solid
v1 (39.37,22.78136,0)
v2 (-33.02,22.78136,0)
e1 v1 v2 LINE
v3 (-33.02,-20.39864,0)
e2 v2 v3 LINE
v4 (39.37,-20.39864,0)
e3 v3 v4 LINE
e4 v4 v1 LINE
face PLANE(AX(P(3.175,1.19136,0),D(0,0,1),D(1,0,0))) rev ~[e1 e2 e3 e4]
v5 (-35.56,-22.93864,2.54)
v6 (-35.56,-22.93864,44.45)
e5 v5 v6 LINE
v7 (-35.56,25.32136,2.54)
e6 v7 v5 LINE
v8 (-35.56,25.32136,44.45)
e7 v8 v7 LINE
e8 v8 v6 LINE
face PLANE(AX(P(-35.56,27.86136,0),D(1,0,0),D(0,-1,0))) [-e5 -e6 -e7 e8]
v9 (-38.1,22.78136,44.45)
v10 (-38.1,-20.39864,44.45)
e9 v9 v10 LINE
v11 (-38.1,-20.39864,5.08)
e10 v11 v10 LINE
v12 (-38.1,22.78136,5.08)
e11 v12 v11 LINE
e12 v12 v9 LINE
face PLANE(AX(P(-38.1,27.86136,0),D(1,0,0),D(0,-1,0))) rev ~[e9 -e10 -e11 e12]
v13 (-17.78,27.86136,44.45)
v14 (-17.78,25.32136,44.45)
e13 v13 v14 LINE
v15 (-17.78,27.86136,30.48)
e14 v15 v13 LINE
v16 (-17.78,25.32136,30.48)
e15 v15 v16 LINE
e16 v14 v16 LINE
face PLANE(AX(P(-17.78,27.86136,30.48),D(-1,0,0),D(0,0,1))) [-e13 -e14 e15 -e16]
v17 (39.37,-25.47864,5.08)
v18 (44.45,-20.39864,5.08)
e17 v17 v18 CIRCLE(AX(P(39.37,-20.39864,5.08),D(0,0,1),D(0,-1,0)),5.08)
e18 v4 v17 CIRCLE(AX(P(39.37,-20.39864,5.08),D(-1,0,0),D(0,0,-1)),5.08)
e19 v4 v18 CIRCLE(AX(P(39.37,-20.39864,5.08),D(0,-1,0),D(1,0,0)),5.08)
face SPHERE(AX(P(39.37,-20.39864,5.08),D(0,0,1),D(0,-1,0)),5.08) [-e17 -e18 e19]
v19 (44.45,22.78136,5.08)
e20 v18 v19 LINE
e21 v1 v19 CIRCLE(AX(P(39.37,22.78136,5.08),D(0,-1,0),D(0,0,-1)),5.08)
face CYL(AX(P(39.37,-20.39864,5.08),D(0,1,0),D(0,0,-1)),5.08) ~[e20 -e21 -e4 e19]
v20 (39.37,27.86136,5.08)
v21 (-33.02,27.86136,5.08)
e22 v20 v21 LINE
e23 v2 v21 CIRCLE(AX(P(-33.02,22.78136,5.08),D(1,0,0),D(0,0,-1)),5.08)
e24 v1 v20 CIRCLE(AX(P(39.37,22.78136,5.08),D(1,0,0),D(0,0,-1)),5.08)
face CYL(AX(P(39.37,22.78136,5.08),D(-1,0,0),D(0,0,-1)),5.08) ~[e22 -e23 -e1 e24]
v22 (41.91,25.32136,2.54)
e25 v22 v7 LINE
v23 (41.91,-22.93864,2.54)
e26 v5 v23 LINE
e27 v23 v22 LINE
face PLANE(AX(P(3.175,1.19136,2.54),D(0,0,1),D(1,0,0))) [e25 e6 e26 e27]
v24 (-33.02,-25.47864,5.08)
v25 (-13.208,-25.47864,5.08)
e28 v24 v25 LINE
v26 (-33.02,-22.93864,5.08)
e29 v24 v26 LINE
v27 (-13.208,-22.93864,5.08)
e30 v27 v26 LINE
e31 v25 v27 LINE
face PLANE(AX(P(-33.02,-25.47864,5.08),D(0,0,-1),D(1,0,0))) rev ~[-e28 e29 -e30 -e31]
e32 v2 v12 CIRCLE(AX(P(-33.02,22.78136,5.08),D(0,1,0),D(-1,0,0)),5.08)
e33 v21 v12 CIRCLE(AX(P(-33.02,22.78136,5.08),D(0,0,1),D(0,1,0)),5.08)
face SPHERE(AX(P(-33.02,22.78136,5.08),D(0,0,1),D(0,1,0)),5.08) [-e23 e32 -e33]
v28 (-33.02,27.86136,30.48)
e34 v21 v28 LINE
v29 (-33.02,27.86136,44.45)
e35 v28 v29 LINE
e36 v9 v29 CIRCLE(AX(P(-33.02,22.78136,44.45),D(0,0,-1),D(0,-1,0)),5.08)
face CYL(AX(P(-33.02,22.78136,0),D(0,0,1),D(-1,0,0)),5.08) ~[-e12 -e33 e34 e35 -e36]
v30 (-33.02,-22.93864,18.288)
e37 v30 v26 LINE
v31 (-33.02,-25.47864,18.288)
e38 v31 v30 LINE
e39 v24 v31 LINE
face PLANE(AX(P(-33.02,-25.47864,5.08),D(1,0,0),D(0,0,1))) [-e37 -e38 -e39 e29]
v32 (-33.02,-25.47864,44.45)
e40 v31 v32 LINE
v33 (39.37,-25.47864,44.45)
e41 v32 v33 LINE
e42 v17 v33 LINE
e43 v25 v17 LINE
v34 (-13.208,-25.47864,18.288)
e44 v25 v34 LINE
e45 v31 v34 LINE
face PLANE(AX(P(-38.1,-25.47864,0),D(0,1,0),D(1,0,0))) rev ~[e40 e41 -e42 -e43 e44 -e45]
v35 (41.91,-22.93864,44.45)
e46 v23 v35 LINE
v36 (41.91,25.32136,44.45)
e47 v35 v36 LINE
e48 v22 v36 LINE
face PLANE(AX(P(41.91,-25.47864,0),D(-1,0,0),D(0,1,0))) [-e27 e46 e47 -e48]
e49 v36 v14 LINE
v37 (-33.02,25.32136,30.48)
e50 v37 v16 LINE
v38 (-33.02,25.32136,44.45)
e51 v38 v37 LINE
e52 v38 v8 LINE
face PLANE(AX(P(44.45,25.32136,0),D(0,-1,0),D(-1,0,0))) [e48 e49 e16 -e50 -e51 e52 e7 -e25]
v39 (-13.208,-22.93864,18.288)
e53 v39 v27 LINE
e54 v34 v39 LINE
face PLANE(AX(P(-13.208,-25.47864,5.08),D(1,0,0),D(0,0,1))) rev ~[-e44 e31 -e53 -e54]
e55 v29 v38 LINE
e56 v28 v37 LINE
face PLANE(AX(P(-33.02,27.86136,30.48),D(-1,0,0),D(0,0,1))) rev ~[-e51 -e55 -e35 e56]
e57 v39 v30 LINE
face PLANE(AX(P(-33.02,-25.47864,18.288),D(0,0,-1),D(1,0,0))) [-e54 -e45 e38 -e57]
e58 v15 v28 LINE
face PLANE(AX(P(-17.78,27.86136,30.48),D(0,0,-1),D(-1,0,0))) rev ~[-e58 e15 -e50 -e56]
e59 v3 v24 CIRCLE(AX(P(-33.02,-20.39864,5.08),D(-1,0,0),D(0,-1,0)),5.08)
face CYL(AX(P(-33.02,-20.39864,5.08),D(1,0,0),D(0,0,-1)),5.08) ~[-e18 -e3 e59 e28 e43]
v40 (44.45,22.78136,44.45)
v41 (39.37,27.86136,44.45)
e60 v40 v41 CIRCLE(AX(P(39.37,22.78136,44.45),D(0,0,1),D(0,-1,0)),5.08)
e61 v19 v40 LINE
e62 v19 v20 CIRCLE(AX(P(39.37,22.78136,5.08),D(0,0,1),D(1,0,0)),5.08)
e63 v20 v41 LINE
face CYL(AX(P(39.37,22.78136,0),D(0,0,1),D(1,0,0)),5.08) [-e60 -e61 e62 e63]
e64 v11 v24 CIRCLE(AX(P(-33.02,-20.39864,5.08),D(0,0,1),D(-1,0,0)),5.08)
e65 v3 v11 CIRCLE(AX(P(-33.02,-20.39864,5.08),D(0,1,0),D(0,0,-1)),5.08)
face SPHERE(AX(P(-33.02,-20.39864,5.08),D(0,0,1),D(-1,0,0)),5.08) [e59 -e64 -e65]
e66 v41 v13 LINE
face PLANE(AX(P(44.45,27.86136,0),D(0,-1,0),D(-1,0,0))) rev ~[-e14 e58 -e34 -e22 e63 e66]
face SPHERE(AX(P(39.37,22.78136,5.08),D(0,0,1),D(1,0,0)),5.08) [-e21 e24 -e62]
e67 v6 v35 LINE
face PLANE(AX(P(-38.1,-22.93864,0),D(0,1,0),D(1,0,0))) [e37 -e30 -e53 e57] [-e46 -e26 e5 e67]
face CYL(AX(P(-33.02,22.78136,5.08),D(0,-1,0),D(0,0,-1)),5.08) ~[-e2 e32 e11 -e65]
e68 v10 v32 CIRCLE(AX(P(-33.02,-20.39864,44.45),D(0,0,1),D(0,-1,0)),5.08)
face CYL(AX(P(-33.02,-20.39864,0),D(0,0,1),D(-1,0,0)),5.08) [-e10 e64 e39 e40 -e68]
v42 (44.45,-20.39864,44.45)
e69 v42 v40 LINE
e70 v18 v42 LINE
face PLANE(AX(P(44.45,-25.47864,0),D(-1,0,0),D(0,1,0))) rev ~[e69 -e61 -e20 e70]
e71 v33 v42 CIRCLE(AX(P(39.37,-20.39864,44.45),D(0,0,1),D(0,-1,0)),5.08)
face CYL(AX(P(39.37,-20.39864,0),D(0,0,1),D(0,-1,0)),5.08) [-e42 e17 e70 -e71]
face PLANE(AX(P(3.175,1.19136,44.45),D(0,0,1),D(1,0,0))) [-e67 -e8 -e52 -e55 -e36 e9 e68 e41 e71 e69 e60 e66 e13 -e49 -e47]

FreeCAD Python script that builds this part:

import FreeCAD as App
import Part
import Sketcher
from FreeCAD import Vector
Q = App.Units.Quantity


def edges_at(feature, points):
    """Names of the edges that pass closest to the given points."""
    edges = feature.Shape.Edges
    near = lambda p: min(range(len(edges)), key=lambda i: edges[i].distToShape(Part.Vertex(*p))[0])
    return sorted({f"Edge{near(p) + 1}" for p in points})


def faces_at(feature, points):
    """Names of the faces that lie closest to the given points."""
    faces = feature.Shape.Faces
    near = lambda p: min(range(len(faces)), key=lambda i: faces[i].distToShape(Part.Vertex(*p))[0])
    return sorted({f"Face{near(p) + 1}" for p in points})


def add_polygon(sketch, points):
    """Adds a closed chain of lines whose ends are joined by coincident constraints."""
    first, n = sketch.GeometryCount, len(points)
    for a, b in zip(points, points[1:] + points[:1]):
        sketch.addGeometry(Part.LineSegment(App.Vector(*a, 0), App.Vector(*b, 0)), False)
    for i in range(n):
        sketch.addConstraint(Sketcher.Constraint("Coincident", first + i, 2, first + (i + 1) % n, 1))

doc = App.newDocument("Part")
body = doc.addObject("PartDesign::Body", "Body")

# Sketch on XY plane
sketch1 = body.newObject("Sketcher::SketchObject", "Sketch")
sketch1.AttachmentSupport = (doc.getObject("XY_Plane"), [""])
sketch1.MapMode = "FlatFace"
add_polygon(sketch1, [(-38, 28), (-38, -25), (44, -25), (44, 28)])  # lines 0-3
sketch1.addConstraint([
    Sketcher.Constraint("Vertical", 0),
    Sketcher.Constraint("Horizontal", 1),
    Sketcher.Constraint("Vertical", 2),
    Sketcher.Constraint("Horizontal", 3),
    Sketcher.Constraint("DistanceY", 0, 2, 0, 1, Q("2.1 in")),
    Sketcher.Constraint("DistanceX", 1, 1, 1, 2, Q("3.25 in")),
    Sketcher.Constraint("DistanceX", 0, 2, -1, 1, Q("1.5 in")),
    Sketcher.Constraint("DistanceY", 0, 2, -1, 1, 25.47864),
])
pad1 = body.newObject("PartDesign::Pad", "Pad")
pad1.Profile = sketch1
pad1.Length = Q("1.75 in")
doc.recompute()

thickness = body.newObject("PartDesign::Thickness", "Thickness")
thickness.Base = (pad1, faces_at(pad1, [(3.175, 1.191, 44.45)]))
thickness.Value = Q("0.1 in")
thickness.Reversed = True
thickness.Join = "Arc"
doc.recompute()

fillet = body.newObject("PartDesign::Fillet", "Fillet")
fillet.Base = (thickness, edges_at(thickness, [
    (-38.1, 27.861, 22.225),
    (-38.1, -25.479, 22.225),
    (44.45, -25.479, 22.225),
    (44.45, 27.861, 22.225),
]))
fillet.Radius = Q("0.2 in")
doc.recompute()

fillet2 = body.newObject("PartDesign::Fillet", "Fillet001")
fillet2.Base = (fillet, edges_at(fillet, [
    (3.175, 27.861, 0),
    (42.962, 26.373, 0),
    (-36.612, 26.373, 0),
    (44.45, 1.191, 0),
    (-38.1, 1.191, 0),
    (42.962, -23.991, 0),
    (-36.612, -23.991, 0),
    (3.175, -25.479, 0),
]))
fillet2.Radius = Q("0.2 in")

# Sketch on XZ plane
sketch2 = body.newObject("Sketcher::SketchObject", "Sketch001")
sketch2.AttachmentSupport = (doc.getObject("XZ_Plane"), [""])
sketch2.MapMode = "FlatFace"
sketch2.AttachmentOffset = App.Placement(Vector(0, 0, 25.47864), App.Rotation())
add_polygon(sketch2, [(-33, 18), (-33, 5), (-13, 5), (-13, 18)])  # lines 0-3
sketch2.addConstraint([
    Sketcher.Constraint("Vertical", 0),
    Sketcher.Constraint("Horizontal", 1),
    Sketcher.Constraint("Vertical", 2),
    Sketcher.Constraint("Horizontal", 3),
    Sketcher.Constraint("DistanceX", 1, 1, 1, 2, Q("0.78 in")),
    Sketcher.Constraint("DistanceY", 0, 2, 0, 1, Q("0.52 in")),
    Sketcher.Constraint("DistanceX", 0, 2, -1, 1, Q("1.3 in")),
    Sketcher.Constraint("DistanceY", -1, 1, 0, 2, Q("0.2 in")),
])
pocket1 = body.newObject("PartDesign::Pocket", "Pocket")
pocket1.Profile = sketch2
pocket1.Length = Q("0.22 in")

# Sketch on XZ plane
sketch3 = body.newObject("Sketcher::SketchObject", "Sketch002")
sketch3.AttachmentSupport = (doc.getObject("XZ_Plane"), [""])
sketch3.MapMode = "FlatFace"
sketch3.AttachmentOffset = App.Placement(Vector(0, 0, -27.86136), App.Rotation())
add_polygon(sketch3, [(-18, 46), (-18, 30), (-33, 30), (-33, 46)])  # lines 0-3
sketch3.addConstraint([
    Sketcher.Constraint("Vertical", 0),
    Sketcher.Constraint("Horizontal", 1),
    Sketcher.Constraint("Vertical", 2),
    Sketcher.Constraint("Horizontal", 3),
    Sketcher.Constraint("DistanceX", 1, 2, 1, 1, Q("0.6 in")),
    Sketcher.Constraint("DistanceX", 0, 2, -1, 1, Q("0.7 in")),
    Sketcher.Constraint("DistanceY", -1, 1, 0, 2, Q("1.2 in")),
    Sketcher.Constraint("DistanceY", 0, 2, 0, 1, 15.325371),
])
pocket2 = body.newObject("PartDesign::Pocket", "Pocket001")
pocket2.Profile = sketch3
pocket2.Length = Q("0.26 in")
pocket2.Reversed = True

doc.recompute()
